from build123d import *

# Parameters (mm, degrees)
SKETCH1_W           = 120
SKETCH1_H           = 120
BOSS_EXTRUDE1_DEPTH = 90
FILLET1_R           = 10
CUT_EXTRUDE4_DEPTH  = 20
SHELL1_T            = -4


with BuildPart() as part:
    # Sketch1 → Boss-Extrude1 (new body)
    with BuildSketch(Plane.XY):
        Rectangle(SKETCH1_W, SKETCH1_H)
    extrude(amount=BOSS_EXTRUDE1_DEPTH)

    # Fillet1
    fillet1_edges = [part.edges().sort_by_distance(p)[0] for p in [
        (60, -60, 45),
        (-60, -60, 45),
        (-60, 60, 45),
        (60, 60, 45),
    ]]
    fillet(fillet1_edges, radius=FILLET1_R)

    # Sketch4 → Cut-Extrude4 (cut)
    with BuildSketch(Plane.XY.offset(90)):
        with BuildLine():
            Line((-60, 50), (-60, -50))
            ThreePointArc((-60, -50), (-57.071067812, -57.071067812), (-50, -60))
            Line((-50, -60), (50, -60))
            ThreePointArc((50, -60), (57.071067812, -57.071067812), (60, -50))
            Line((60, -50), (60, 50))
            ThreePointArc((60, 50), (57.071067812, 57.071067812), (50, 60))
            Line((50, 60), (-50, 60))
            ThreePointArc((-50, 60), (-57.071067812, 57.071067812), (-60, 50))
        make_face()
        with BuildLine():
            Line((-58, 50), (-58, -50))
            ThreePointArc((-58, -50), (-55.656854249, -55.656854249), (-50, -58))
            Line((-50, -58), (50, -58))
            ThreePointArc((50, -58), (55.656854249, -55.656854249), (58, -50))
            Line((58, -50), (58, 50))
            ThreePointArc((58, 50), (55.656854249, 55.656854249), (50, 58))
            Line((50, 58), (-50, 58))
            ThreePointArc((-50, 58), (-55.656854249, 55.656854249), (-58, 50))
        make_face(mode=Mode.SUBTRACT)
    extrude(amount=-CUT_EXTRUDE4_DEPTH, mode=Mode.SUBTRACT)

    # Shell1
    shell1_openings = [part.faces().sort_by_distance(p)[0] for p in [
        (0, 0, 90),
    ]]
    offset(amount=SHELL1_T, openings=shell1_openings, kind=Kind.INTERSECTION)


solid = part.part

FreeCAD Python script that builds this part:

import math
import FreeCAD as App
import Part
import Sketcher


def edges_at(feature, points):
    """Names of the edges that pass closest to the given points."""
    edges = feature.Shape.Edges
    near = lambda p: min(range(len(edges)), key=lambda i: edges[i].distToShape(Part.Vertex(*p))[0])
    return sorted({f"Edge{near(p) + 1}" for p in points})


def faces_at(feature, points):
    """Names of the faces that lie closest to the given points."""
    faces = feature.Shape.Faces
    near = lambda p: min(range(len(faces)), key=lambda i: faces[i].distToShape(Part.Vertex(*p))[0])
    return sorted({f"Face{near(p) + 1}" for p in points})

doc = App.newDocument("Part")
params = doc.addObject("Spreadsheet::Sheet", "Params")
for row, (alias, value) in enumerate([
    ("sketch1_width", "120 mm"),
    ("pad1_length", "90 mm"),
    ("fillet_radius", "10 mm"),
    ("sketch2_radius", "10 mm"),
    ("sketch2_radius2", "8 mm"),
    ("sketch2_width", "100 mm"),
    ("pocket1_length", "20 mm"),
    ("thickness_wall", "4 mm"),
], start=1):
    params.set(f"A{row}", alias)
    params.set(f"B{row}", "=" + value)
    params.setAlias(f"B{row}", alias)

body = doc.addObject("PartDesign::Body", "Body")

# Sketch on XY plane
sketch1 = body.newObject("Sketcher::SketchObject", "Sketch")
sketch1.AttachmentSupport = (doc.getObject("XY_Plane"), [""])
sketch1.MapMode = "FlatFace"
sketch1.addGeometry([
    Part.LineSegment(App.Vector(-60, 60, 0), App.Vector(-60, -60, 0)),
    Part.LineSegment(App.Vector(-60, -60, 0), App.Vector(60, -60, 0)),
    Part.LineSegment(App.Vector(60, -60, 0), App.Vector(60, 60, 0)),
    Part.LineSegment(App.Vector(60, 60, 0), App.Vector(-60, 60, 0)),
], False)
sketch1.addConstraint([
    Sketcher.Constraint("Coincident", 0, 2, 1, 1),
    Sketcher.Constraint("Coincident", 1, 2, 2, 1),
    Sketcher.Constraint("Coincident", 2, 2, 3, 1),
    Sketcher.Constraint("Coincident", 3, 2, 0, 1),
    Sketcher.Constraint("Vertical", 0),
    Sketcher.Constraint("Horizontal", 1),
    Sketcher.Constraint("Vertical", 2),
    Sketcher.Constraint("Horizontal", 3),
    Sketcher.Constraint("Symmetric", 0, 2, 2, 2, -1, 1),
    Sketcher.Constraint("Equal", 3, 0),
    Sketcher.Constraint("DistanceX", 1, 1, 1, 2, 120.0),
])
sketch1.setExpression("Constraints[10]", "Params.sketch1_width")
pad1 = body.newObject("PartDesign::Pad", "Pad")
pad1.Profile = sketch1
pad1.setExpression("Length", "Params.pad1_length")
doc.recompute()

fillet = body.newObject("PartDesign::Fillet", "Fillet")
fillet.Base = (pad1, edges_at(pad1, [
    (60, -60, 45),
    (-60, -60, 45),
    (-60, 60, 45),
    (60, 60, 45),
]))
fillet.setExpression("Radius", "Params.fillet_radius")

# Sketch on XY plane
sketch2 = body.newObject("Sketcher::SketchObject", "Sketch001")
sketch2.AttachmentSupport = (doc.getObject("XY_Plane"), [""])
sketch2.MapMode = "FlatFace"
sketch2.AttachmentOffset = App.Placement(App.Vector(0, 0, 90), App.Rotation())
sketch2.addGeometry([
    Part.LineSegment(App.Vector(-60, 50, 0), App.Vector(-60, -50, 0)),  # 0
    Part.ArcOfCircle(Part.Circle(App.Vector(-50, -50, 0), App.Vector(0, 0, 1), 10), math.radians(180), math.radians(270)),  # 1
    Part.LineSegment(App.Vector(-50, -60, 0), App.Vector(50, -60, 0)),  # 2
    Part.ArcOfCircle(Part.Circle(App.Vector(50, -50, 0), App.Vector(0, 0, 1), 10), math.radians(-90), math.radians(0)),  # 3
    Part.LineSegment(App.Vector(60, -50, 0), App.Vector(60, 50, 0)),  # 4
    Part.ArcOfCircle(Part.Circle(App.Vector(50, 50, 0), App.Vector(0, 0, 1), 10), math.radians(0), math.radians(90)),  # 5
    Part.LineSegment(App.Vector(50, 60, 0), App.Vector(-50, 60, 0)),  # 6
    Part.ArcOfCircle(Part.Circle(App.Vector(-50, 50, 0), App.Vector(0, 0, 1), 10), math.radians(90), math.radians(180)),  # 7
    Part.LineSegment(App.Vector(-58, -50, 0), App.Vector(-58, 50, 0)),  # 8
    Part.ArcOfCircle(Part.Circle(App.Vector(-50, 50, 0), App.Vector(0, 0, 1), 8), math.radians(90), math.radians(180)),  # 9
    Part.LineSegment(App.Vector(-50, 58, 0), App.Vector(50, 58, 0)),  # 10
    Part.ArcOfCircle(Part.Circle(App.Vector(50, 50, 0), App.Vector(0, 0, 1), 8), math.radians(0), math.radians(90)),  # 11
    Part.LineSegment(App.Vector(58, 50, 0), App.Vector(58, -50, 0)),  # 12
    Part.ArcOfCircle(Part.Circle(App.Vector(50, -50, 0), App.Vector(0, 0, 1), 8), math.radians(-90), math.radians(0)),  # 13
    Part.LineSegment(App.Vector(50, -58, 0), App.Vector(-50, -58, 0)),  # 14
    Part.ArcOfCircle(Part.Circle(App.Vector(-50, -50, 0), App.Vector(0, 0, 1), 8), math.radians(-180), math.radians(-90)),  # 15
], False)
sketch2.addConstraint([
    Sketcher.Constraint("Tangent", 0, 2, 1, 1),
    Sketcher.Constraint("Tangent", 1, 2, 2, 1),
    Sketcher.Constraint("Tangent", 2, 2, 3, 1),
    Sketcher.Constraint("Tangent", 3, 2, 4, 1),
    Sketcher.Constraint("Tangent", 4, 2, 5, 1),
    Sketcher.Constraint("Tangent", 5, 2, 6, 1),
    Sketcher.Constraint("Tangent", 6, 2, 7, 1),
    Sketcher.Constraint("Tangent", 7, 2, 0, 1),
    Sketcher.Constraint("Tangent", 8, 2, 9, 2),
    Sketcher.Constraint("Tangent", 9, 1, 10, 1),
    Sketcher.Constraint("Tangent", 10, 2, 11, 2),
    Sketcher.Constraint("Tangent", 11, 1, 12, 1),
    Sketcher.Constraint("Tangent", 12, 2, 13, 2),
    Sketcher.Constraint("Tangent", 13, 1, 14, 1),
    Sketcher.Constraint("Tangent", 14, 2, 15, 2),
    Sketcher.Constraint("Tangent", 15, 1, 8, 1),
    Sketcher.Constraint("Vertical", 0),
    Sketcher.Constraint("Horizontal", 2),
    Sketcher.Constraint("Vertical", 4),
    Sketcher.Constraint("Horizontal", 6),
    Sketcher.Constraint("Vertical", 8),
    Sketcher.Constraint("Horizontal", 10),
    Sketcher.Constraint("Vertical", 12),
    Sketcher.Constraint("Horizontal", 14),
    Sketcher.Constraint("Coincident", 9, 3, 7, 3),
    Sketcher.Constraint("Coincident", 11, 3, 5, 3),
    Sketcher.Constraint("Coincident", 13, 3, 3, 3),
    Sketcher.Constraint("Equal", 1, 3),
    Sketcher.Constraint("Equal", 3, 5),
    Sketcher.Constraint("Equal", 5, 7),
    Sketcher.Constraint("Equal", 13, 15),
    Sketcher.Constraint("Symmetric", 1, 3, 5, 3, -1, 1),
    Sketcher.Constraint("Equal", 14, 0),
    Sketcher.Constraint("Radius", 1, 10.0),
    Sketcher.Constraint("Radius", 9, 8.0),
    Sketcher.Constraint("DistanceX", 2, 1, 2, 2, 100.0),
])
sketch2.setExpression("Constraints[33]", "Params.sketch2_radius")
sketch2.setExpression("Constraints[34]", "Params.sketch2_radius2")
sketch2.setExpression("Constraints[35]", "Params.sketch2_width")
pocket1 = body.newObject("PartDesign::Pocket", "Pocket")
pocket1.Profile = sketch2
pocket1.setExpression("Length", "Params.pocket1_length")
doc.recompute()

thickness = body.newObject("PartDesign::Thickness", "Thickness")
thickness.Base = (pocket1, faces_at(pocket1, [(0, 0, 90)]))
thickness.setExpression("Value", "Params.thickness_wall")
thickness.Reversed = True
thickness.Join = "Intersection"

doc.recompute()
